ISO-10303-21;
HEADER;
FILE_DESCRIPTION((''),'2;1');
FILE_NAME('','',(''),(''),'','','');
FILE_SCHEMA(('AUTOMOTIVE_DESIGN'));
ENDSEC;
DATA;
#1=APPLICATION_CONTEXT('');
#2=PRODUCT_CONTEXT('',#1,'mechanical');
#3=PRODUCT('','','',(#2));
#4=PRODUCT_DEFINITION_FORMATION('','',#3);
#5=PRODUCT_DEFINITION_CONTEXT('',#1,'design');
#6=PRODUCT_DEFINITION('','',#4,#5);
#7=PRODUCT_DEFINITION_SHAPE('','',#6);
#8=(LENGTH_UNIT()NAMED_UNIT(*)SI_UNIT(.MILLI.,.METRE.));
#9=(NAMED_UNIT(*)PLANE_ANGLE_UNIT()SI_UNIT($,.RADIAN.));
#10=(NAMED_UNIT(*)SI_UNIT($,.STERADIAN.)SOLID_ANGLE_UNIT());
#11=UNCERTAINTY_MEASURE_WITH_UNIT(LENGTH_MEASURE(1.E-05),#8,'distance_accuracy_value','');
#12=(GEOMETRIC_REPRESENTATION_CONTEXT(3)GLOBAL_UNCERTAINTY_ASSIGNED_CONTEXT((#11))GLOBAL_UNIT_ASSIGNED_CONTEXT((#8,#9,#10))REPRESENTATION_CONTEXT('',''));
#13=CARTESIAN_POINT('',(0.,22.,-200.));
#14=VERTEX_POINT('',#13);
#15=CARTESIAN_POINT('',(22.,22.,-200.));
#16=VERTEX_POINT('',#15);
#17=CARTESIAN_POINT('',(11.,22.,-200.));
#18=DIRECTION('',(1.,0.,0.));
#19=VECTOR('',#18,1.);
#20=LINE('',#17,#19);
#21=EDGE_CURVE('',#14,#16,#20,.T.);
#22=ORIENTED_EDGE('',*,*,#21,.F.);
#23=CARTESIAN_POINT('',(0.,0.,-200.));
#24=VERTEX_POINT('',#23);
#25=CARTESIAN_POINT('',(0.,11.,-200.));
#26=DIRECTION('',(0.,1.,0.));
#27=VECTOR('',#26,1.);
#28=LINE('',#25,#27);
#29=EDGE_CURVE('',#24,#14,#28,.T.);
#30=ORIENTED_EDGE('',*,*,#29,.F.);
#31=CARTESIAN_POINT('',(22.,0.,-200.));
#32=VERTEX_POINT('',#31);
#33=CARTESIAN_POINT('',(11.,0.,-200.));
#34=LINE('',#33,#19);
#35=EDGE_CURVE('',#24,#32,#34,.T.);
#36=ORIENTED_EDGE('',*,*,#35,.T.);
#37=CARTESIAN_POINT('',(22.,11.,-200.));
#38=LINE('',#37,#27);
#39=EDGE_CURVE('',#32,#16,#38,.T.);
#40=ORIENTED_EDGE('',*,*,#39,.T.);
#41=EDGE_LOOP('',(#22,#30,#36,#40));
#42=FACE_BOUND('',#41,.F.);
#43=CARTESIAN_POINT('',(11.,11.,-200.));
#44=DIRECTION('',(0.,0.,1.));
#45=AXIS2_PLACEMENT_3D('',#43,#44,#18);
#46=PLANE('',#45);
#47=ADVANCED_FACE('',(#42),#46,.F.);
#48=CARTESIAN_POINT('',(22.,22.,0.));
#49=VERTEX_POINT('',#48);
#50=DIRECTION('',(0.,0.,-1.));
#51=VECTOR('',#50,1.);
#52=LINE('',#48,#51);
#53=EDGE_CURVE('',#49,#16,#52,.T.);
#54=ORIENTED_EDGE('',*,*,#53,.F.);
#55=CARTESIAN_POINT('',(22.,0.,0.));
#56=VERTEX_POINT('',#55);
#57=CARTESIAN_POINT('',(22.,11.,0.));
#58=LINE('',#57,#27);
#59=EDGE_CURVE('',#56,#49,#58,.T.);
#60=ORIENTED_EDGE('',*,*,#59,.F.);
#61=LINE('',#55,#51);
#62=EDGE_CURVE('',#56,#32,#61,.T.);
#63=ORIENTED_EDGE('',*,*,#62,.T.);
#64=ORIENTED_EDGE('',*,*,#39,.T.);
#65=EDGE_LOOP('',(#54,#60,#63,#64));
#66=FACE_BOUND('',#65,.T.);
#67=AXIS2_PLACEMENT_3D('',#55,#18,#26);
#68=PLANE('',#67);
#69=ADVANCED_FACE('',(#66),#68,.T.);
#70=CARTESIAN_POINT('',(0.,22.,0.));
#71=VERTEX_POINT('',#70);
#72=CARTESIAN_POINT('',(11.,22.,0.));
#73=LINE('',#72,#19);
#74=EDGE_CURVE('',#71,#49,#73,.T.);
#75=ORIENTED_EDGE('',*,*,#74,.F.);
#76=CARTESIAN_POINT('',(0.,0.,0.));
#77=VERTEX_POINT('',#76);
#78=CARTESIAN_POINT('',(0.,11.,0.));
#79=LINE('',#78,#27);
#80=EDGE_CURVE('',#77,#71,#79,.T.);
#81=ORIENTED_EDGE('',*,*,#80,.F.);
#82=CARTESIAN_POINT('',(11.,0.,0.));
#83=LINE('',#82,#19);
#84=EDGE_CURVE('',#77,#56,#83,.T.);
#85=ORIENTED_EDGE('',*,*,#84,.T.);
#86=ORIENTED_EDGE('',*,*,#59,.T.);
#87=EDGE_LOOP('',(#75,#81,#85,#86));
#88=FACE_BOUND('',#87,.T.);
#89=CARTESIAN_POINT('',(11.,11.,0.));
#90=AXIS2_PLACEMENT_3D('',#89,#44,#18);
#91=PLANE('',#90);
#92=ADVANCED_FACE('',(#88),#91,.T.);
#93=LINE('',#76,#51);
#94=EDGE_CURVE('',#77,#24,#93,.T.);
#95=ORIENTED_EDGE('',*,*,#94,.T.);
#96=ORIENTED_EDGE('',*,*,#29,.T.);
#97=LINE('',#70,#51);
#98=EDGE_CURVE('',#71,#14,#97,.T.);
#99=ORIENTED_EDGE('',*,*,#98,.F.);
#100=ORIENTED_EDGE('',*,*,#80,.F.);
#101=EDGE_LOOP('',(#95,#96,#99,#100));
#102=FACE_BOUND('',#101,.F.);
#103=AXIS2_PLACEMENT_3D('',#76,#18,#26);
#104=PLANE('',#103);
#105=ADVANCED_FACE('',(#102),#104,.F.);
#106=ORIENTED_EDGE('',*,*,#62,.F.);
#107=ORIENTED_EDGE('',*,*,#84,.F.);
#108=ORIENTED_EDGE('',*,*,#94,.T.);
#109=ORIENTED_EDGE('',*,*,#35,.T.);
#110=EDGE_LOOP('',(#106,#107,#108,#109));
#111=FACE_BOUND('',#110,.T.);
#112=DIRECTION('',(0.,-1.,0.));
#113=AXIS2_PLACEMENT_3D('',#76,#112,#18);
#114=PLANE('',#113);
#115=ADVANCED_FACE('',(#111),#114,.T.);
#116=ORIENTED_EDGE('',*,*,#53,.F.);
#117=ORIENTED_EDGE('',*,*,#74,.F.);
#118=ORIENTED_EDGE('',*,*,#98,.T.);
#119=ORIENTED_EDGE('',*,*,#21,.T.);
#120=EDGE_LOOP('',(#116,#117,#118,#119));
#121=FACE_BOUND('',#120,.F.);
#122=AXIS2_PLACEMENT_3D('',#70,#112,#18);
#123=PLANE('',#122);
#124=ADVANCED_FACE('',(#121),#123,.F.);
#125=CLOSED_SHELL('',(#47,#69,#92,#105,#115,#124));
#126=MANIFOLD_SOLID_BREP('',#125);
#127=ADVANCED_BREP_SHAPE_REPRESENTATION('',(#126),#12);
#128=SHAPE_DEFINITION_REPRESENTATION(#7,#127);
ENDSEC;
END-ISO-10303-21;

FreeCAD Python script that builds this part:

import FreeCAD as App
import Part
import Sketcher

doc = App.newDocument("Part")
body = doc.addObject("PartDesign::Body", "Body")

# Sketch on XY plane
sketch1 = body.newObject("Sketcher::SketchObject", "Sketch")
sketch1.AttachmentSupport = (doc.getObject("XY_Plane"), [""])
sketch1.MapMode = "FlatFace"
sketch1.addGeometry([
    Part.LineSegment(App.Vector(0, 22, 0), App.Vector(0, 0, 0)),
    Part.LineSegment(App.Vector(0, 0, 0), App.Vector(22, 0, 0)),
    Part.LineSegment(App.Vector(22, 0, 0), App.Vector(22, 22, 0)),
    Part.LineSegment(App.Vector(22, 22, 0), App.Vector(0, 22, 0)),
], False)
sketch1.addConstraint([
    Sketcher.Constraint("Coincident", 0, 2, 1, 1),
    Sketcher.Constraint("Coincident", 1, 2, 2, 1),
    Sketcher.Constraint("Coincident", 2, 2, 3, 1),
    Sketcher.Constraint("Coincident", 3, 2, 0, 1),
    Sketcher.Constraint("Vertical", 0),
    Sketcher.Constraint("Horizontal", 1),
    Sketcher.Constraint("Vertical", 2),
    Sketcher.Constraint("Horizontal", 3),
    Sketcher.Constraint("Coincident", 0, 2, -1, 1),
    Sketcher.Constraint("Equal", 3, 0),
    Sketcher.Constraint("DistanceX", 1, 1, 1, 2, 22.0),
])
pad1 = body.newObject("PartDesign::Pad", "Pad")
pad1.Profile = sketch1
pad1.Length = 200
pad1.Reversed = True

doc.recompute()
